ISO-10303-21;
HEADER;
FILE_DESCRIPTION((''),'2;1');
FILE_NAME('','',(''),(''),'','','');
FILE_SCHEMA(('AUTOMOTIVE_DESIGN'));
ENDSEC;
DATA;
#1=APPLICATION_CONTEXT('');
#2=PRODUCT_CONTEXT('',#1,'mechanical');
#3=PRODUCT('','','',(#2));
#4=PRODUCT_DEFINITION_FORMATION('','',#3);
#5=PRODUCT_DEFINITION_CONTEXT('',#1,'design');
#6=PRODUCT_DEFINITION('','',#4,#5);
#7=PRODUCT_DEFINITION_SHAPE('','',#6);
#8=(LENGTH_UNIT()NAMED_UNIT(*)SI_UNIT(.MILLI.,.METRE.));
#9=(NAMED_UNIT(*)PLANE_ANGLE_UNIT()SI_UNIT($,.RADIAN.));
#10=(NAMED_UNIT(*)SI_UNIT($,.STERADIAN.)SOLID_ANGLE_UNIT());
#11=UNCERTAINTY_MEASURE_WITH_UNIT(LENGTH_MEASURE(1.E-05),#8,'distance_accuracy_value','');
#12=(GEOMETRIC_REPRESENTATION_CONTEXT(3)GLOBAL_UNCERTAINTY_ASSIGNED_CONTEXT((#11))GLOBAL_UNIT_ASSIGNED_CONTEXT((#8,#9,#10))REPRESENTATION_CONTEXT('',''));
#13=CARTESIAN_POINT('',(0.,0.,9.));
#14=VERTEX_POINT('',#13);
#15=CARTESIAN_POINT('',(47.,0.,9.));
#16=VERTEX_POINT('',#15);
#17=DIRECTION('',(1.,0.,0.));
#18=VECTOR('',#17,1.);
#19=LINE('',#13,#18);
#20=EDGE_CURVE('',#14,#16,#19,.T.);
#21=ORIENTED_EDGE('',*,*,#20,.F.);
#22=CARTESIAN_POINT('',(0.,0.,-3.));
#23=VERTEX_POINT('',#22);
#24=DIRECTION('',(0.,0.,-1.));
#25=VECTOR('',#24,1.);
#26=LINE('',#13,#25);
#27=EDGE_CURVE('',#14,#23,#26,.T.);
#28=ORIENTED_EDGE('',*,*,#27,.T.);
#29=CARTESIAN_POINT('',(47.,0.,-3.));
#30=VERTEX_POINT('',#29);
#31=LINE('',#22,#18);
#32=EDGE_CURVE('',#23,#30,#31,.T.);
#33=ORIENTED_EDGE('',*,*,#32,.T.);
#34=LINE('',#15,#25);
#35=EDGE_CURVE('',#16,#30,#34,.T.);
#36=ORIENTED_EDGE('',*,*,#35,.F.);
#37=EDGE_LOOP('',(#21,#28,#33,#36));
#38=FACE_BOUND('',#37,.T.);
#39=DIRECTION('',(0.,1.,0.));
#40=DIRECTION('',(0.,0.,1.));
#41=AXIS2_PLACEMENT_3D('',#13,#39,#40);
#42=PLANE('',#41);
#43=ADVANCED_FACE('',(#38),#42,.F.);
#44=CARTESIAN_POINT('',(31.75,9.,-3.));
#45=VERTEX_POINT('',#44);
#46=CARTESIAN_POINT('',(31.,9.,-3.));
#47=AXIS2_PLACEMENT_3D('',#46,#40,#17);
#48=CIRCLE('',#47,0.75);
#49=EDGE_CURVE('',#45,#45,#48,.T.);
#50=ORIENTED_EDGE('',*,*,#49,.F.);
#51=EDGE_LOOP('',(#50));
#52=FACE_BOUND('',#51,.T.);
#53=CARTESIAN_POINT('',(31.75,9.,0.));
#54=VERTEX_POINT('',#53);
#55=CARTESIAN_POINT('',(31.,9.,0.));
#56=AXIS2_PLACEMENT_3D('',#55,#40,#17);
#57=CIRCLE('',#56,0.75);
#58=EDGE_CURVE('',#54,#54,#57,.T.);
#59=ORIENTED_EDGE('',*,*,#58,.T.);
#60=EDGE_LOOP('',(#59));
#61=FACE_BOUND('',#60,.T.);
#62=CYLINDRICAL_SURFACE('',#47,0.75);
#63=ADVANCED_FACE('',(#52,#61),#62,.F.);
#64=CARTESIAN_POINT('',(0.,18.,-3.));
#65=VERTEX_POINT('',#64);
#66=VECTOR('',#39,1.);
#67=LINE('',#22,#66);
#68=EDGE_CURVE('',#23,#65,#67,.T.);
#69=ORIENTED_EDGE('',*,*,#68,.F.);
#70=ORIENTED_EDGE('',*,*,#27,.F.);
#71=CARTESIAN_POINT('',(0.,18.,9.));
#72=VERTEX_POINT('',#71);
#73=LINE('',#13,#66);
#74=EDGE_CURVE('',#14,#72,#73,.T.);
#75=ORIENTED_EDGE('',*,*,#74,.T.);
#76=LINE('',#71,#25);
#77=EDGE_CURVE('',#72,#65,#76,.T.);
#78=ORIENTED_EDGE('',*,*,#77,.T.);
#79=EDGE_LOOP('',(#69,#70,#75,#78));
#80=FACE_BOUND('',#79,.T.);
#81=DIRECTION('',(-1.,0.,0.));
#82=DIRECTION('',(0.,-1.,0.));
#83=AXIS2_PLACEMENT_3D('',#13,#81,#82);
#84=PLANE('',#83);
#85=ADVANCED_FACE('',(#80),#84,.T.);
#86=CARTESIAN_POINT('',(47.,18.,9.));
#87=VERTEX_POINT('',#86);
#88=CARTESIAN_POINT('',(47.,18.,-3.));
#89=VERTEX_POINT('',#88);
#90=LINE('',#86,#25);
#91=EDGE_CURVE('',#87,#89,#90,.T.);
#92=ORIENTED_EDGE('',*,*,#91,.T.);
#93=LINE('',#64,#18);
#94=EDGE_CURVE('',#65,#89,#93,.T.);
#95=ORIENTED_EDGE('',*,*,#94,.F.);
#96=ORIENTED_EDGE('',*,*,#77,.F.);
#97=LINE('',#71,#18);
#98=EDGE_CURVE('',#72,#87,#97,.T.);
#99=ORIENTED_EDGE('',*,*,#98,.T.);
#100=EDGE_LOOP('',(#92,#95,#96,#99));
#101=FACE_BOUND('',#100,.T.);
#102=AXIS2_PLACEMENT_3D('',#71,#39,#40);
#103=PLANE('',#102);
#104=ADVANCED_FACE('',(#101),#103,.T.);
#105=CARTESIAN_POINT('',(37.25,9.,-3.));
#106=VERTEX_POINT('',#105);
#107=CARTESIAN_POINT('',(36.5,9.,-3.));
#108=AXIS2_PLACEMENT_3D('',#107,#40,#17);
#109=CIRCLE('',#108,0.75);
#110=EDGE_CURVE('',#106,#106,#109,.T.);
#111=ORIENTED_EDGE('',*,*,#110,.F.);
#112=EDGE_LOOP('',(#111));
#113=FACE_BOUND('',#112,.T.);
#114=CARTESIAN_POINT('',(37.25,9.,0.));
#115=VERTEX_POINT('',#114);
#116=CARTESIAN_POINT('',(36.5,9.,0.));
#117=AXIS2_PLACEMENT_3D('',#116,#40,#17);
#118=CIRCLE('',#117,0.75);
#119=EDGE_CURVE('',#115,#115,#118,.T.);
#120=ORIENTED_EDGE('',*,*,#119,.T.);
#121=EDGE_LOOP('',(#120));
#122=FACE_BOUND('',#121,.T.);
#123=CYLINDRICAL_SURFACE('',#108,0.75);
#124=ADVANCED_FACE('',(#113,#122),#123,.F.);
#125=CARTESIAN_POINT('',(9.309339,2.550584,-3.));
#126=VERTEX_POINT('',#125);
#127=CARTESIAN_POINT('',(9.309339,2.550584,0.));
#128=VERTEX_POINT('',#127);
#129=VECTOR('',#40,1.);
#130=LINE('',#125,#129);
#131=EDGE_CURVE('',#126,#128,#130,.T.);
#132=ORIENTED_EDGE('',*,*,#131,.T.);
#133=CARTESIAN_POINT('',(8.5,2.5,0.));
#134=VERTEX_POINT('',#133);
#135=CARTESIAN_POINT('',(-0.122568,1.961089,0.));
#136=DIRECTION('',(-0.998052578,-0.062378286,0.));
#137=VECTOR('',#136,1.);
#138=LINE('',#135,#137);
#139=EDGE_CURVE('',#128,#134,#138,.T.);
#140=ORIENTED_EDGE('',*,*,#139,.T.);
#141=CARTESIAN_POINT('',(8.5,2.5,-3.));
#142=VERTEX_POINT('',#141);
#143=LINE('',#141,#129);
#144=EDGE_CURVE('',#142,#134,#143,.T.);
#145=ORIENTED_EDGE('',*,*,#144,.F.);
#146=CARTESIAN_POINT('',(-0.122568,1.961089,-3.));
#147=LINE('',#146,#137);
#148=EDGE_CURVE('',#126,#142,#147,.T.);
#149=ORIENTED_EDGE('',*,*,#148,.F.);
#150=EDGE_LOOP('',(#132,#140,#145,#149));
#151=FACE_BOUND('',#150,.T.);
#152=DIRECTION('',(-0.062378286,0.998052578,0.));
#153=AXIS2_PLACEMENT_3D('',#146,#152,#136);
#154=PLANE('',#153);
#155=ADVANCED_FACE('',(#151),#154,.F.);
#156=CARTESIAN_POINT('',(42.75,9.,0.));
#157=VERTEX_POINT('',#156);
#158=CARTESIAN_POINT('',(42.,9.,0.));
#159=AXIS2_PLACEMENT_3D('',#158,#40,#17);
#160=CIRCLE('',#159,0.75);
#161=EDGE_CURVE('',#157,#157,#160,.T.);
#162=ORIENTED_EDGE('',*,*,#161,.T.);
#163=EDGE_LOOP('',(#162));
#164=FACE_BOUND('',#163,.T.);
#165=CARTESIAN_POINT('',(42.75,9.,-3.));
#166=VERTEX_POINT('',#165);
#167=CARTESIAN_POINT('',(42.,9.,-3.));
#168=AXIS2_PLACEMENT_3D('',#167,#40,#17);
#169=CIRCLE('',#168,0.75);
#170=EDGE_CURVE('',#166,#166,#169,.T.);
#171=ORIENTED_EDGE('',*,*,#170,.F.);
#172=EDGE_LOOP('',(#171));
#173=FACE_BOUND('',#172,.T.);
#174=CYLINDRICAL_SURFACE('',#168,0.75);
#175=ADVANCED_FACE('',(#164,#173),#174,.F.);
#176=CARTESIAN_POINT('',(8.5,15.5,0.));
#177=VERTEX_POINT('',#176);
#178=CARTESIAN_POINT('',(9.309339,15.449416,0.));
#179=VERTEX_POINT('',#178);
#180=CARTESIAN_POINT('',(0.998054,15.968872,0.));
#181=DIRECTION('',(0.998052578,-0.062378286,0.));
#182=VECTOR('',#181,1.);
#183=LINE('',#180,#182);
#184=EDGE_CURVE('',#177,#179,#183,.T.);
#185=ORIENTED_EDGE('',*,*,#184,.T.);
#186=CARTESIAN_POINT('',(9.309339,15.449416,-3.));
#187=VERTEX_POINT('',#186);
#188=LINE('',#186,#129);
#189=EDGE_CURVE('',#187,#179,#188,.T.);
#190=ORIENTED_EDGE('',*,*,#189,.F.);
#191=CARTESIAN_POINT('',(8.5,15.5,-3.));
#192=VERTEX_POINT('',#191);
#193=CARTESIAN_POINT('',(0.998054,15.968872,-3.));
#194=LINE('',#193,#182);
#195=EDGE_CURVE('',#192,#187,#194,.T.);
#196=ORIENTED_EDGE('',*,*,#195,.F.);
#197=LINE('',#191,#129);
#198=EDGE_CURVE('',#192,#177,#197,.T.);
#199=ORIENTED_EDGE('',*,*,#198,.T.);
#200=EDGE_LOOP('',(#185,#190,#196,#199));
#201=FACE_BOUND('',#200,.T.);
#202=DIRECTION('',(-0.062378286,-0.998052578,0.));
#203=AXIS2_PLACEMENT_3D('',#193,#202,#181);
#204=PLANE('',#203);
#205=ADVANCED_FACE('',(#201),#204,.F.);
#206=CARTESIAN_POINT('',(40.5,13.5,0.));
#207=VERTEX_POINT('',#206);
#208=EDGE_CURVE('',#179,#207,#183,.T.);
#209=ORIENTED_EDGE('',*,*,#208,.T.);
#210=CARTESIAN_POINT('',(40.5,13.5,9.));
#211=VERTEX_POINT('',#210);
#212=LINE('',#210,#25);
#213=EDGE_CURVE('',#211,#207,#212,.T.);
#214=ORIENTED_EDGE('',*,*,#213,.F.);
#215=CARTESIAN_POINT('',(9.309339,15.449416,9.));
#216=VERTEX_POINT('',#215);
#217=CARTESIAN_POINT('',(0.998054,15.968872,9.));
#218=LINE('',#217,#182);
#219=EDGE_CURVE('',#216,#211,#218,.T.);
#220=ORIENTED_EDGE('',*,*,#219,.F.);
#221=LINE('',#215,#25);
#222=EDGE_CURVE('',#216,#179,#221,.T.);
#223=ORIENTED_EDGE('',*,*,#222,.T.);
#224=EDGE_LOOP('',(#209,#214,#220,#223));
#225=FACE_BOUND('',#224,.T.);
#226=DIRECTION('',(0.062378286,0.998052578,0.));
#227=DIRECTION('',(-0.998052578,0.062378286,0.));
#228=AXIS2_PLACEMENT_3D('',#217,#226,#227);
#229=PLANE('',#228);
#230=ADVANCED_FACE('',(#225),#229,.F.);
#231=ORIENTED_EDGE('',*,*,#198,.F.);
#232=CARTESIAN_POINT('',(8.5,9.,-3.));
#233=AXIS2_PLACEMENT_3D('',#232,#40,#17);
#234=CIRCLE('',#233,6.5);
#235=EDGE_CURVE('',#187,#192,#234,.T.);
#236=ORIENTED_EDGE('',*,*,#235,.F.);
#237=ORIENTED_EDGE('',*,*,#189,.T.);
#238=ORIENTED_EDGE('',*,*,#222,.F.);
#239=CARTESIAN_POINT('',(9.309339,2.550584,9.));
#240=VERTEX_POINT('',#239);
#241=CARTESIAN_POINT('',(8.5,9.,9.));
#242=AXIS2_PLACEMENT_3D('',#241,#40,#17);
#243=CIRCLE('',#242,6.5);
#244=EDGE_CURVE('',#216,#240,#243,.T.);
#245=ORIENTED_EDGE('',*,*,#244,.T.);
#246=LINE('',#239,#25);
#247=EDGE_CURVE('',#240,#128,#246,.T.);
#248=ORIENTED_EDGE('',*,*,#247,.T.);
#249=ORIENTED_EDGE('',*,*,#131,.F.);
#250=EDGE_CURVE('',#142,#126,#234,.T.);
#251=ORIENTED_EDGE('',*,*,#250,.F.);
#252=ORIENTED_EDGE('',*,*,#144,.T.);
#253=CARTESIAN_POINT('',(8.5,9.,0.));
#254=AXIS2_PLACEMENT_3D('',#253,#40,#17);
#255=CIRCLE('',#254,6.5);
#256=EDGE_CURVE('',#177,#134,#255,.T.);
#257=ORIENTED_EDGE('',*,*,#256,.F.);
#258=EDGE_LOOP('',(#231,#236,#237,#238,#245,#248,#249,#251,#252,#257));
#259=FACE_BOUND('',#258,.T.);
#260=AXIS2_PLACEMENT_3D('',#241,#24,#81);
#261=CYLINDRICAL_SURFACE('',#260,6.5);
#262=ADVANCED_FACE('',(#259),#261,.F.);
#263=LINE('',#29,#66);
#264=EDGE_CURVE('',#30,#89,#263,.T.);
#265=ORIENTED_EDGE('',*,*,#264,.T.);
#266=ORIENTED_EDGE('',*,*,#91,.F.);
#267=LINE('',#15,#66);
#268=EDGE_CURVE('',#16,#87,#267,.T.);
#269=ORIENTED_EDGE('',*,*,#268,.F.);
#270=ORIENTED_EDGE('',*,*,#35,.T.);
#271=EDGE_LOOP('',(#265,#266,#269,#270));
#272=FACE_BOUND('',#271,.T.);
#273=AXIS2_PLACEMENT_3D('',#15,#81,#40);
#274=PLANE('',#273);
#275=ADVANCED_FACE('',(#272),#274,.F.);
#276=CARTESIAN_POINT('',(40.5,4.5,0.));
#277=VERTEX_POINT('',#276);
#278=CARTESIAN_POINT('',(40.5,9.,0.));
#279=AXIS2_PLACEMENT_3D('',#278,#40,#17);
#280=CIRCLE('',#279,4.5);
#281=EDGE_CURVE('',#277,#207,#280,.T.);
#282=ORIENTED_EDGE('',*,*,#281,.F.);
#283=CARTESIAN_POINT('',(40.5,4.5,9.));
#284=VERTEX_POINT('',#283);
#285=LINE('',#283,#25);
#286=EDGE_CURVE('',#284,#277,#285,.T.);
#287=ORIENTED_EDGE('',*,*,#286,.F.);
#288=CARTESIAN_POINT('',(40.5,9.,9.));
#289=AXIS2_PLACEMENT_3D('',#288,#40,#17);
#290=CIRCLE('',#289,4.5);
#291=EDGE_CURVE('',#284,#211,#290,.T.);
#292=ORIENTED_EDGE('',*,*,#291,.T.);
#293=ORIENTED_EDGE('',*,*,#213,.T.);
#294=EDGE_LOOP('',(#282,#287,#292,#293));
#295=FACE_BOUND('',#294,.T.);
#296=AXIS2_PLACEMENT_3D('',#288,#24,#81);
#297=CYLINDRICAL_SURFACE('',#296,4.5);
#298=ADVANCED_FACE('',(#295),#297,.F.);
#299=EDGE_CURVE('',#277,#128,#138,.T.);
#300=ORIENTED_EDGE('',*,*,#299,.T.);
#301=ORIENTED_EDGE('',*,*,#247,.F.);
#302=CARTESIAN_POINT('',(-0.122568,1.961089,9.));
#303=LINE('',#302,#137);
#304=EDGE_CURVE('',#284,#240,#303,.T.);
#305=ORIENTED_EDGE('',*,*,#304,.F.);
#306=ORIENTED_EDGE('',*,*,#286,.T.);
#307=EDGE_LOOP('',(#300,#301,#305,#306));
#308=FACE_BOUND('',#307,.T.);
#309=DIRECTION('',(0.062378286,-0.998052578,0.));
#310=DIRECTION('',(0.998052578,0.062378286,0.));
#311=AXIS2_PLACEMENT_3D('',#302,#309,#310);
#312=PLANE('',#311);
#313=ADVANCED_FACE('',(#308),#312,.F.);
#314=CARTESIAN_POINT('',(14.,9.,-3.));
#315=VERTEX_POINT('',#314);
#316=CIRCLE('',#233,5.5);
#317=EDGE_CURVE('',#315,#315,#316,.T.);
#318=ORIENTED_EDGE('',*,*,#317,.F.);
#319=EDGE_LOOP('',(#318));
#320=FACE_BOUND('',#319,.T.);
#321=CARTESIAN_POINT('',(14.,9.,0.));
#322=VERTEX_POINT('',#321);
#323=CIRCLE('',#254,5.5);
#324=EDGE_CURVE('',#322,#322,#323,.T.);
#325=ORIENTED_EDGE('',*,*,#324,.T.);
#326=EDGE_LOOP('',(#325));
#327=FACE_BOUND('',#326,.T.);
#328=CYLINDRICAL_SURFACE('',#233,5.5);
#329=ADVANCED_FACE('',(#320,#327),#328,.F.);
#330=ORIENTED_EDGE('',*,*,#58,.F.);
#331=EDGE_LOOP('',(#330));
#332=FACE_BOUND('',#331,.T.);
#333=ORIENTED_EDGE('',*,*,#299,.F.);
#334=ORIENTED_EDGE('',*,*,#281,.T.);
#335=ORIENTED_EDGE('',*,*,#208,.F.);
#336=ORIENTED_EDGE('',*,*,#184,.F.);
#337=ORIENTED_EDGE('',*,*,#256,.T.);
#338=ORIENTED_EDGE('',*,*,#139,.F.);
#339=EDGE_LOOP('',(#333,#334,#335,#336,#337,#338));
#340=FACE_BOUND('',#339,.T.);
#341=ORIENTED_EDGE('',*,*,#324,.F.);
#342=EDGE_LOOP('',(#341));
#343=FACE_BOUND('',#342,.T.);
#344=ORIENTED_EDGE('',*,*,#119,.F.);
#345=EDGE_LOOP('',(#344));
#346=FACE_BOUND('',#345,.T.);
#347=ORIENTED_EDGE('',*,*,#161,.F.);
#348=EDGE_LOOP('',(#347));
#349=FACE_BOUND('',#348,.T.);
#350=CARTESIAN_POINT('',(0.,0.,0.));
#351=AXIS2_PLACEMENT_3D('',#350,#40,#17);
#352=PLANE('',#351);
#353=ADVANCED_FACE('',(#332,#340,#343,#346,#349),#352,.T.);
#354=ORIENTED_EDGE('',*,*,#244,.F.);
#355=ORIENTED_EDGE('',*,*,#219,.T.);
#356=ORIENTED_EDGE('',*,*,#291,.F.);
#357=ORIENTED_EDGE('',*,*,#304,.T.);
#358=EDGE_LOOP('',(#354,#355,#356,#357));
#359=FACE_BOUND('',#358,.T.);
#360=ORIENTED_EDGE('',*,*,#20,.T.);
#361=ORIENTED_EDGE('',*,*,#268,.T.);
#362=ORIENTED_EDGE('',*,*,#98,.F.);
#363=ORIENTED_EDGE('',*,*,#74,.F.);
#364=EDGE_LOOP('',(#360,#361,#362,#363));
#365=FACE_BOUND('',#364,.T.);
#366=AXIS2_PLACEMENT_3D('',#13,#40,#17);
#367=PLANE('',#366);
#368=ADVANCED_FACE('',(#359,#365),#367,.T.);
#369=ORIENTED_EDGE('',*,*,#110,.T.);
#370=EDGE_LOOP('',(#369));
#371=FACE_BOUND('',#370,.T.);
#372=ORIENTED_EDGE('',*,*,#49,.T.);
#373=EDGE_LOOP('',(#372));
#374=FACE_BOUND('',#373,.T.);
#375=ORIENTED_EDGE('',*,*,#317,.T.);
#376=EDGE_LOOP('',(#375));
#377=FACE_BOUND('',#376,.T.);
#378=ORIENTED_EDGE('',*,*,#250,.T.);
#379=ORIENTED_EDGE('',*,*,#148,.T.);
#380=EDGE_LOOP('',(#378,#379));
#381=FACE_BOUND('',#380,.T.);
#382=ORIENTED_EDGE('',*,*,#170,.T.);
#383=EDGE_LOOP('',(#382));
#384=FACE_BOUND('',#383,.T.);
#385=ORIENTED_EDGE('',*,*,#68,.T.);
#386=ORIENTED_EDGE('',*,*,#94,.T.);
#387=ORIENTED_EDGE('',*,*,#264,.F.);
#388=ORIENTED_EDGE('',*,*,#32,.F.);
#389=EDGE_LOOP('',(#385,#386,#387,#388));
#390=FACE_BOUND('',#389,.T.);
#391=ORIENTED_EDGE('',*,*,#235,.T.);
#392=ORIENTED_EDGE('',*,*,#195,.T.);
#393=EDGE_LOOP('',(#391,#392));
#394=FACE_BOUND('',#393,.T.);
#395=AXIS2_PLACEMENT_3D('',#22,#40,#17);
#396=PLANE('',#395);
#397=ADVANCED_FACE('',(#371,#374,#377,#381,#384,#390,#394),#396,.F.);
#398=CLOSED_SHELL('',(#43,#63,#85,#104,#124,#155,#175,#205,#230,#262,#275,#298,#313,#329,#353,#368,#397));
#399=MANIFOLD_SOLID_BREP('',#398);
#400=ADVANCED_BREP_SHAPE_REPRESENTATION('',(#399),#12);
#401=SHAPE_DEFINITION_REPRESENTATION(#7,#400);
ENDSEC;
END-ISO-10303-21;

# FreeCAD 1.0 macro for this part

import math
import FreeCAD as App
import Part
import Sketcher
Q = App.Units.Quantity

doc = App.newDocument("Part")
body = doc.addObject("PartDesign::Body", "Body")

sketch1 = body.newObject("Sketcher::SketchObject", "Sketch")
sketch1.AttachmentSupport = (doc.getObject("XY_Plane"), [""])
sketch1.MapMode = "FlatFace"
sketch1.addGeometry([
    Part.LineSegment(App.Vector(0, 18, 0), App.Vector(0, 0, 0)),
    Part.LineSegment(App.Vector(0, 0, 0), App.Vector(47, 0, 0)),
    Part.LineSegment(App.Vector(47, 0, 0), App.Vector(47, 18, 0)),
    Part.LineSegment(App.Vector(47, 18, 0), App.Vector(0, 18, 0)),
    Part.ArcOfCircle(Part.Circle(App.Vector(8.5, 9, 0), App.Vector(0, 0, 1), 6.5), math.radians(90), math.radians(180)),
    Part.ArcOfCircle(Part.Circle(App.Vector(8.5, 9, 0), App.Vector(0, 0, 1), 6.5), math.radians(82.85), math.radians(90)),
    Part.LineSegment(App.Vector(9.3, 15.4, 0), App.Vector(40.5, 13.5, 0)),
    Part.ArcOfCircle(Part.Circle(App.Vector(40.5, 9, 0), App.Vector(0, 0, 1), 4.5), math.radians(0), math.radians(90)),
    Part.ArcOfCircle(Part.Circle(App.Vector(40.5, 9, 0), App.Vector(0, 0, 1), 4.5), math.radians(-90), math.radians(0)),
    Part.LineSegment(App.Vector(40.5, 4.5, 0), App.Vector(9.3, 2.6, 0)),
    Part.ArcOfCircle(Part.Circle(App.Vector(8.5, 9, 0), App.Vector(0, 0, 1), 6.5), math.radians(-90), math.radians(-82.85)),
    Part.ArcOfCircle(Part.Circle(App.Vector(8.5, 9, 0), App.Vector(0, 0, 1), 6.5), math.radians(180), math.radians(270)),
], False)
sketch1.addConstraint([
    Sketcher.Constraint("Coincident", 0, 2, 1, 1),
    Sketcher.Constraint("Coincident", 1, 2, 2, 1),
    Sketcher.Constraint("Coincident", 2, 2, 3, 1),
    Sketcher.Constraint("Coincident", 3, 2, 0, 1),
    Sketcher.Constraint("Tangent", 4, 1, 5, 2),
    Sketcher.Constraint("Coincident", 5, 1, 6, 1),
    Sketcher.Constraint("Coincident", 6, 2, 7, 2),
    Sketcher.Constraint("Tangent", 7, 1, 8, 2),
    Sketcher.Constraint("Coincident", 8, 1, 9, 1),
    Sketcher.Constraint("Coincident", 9, 2, 10, 2),
    Sketcher.Constraint("Tangent", 10, 1, 11, 2),
    Sketcher.Constraint("Tangent", 11, 1, 4, 2),
    Sketcher.Constraint("Vertical", 0),
    Sketcher.Constraint("Horizontal", 1),
    Sketcher.Constraint("Vertical", 2),
    Sketcher.Constraint("Horizontal", 3),
    Sketcher.Constraint("Coincident", 0, 2, -1, 1),
    Sketcher.Constraint("Coincident", 10, 3, 4, 3),
    Sketcher.Constraint("Equal", 4, 5),
    Sketcher.Constraint("Equal", 7, 8),
    Sketcher.Constraint("Horizontal", 5, 3, 7, 3),
    Sketcher.Constraint("Horizontal", 11, 3, 7, 1),
    Sketcher.Constraint("Horizontal", 7, 1, 11, 1),
    Sketcher.Constraint("Vertical", 11, 3, 4, 1),
    Sketcher.Constraint("Vertical", 8, 3, 6, 2),
    Sketcher.Constraint("Vertical", 6, 2, 8, 1),
    Sketcher.Constraint("Vertical", 5, 1, 9, 2),
    Sketcher.Constraint("Vertical", 4, 1, 10, 1),
    Sketcher.Constraint("Radius", 4, Q("6.5 mm")),
    Sketcher.Constraint("Radius", 7, Q("4.5 mm")),
    Sketcher.Constraint("DistanceX", 1, 1, 1, 2, Q("47 mm")),
    Sketcher.Constraint("DistanceY", 0, 2, 0, 1, Q("18 mm")),
    Sketcher.Constraint("DistanceY", -1, 1, 4, 3, Q("9 mm")),
    Sketcher.Constraint("DistanceX", -1, 1, 7, 1, Q("45 mm")),
    Sketcher.Constraint("DistanceX", -1, 1, 11, 1, Q("2 mm")),
    Sketcher.Constraint("Distance", 6, Q("31.251521 mm")),
])
pad1 = body.newObject("PartDesign::Pad", "Pad")
pad1.Profile = sketch1
pad1.Length = 9

sketch2 = body.newObject("Sketcher::SketchObject", "Sketch001")
sketch2.AttachmentSupport = (doc.getObject("XY_Plane"), [""])
sketch2.MapMode = "FlatFace"
sketch2.AttachmentOffset = App.Placement(App.Vector(0, 0, -3), App.Rotation())
sketch2.addGeometry([
    Part.LineSegment(App.Vector(0, 18, 0), App.Vector(0, 0, 0)),
    Part.LineSegment(App.Vector(0, 0, 0), App.Vector(47, 0, 0)),
    Part.LineSegment(App.Vector(47, 0, 0), App.Vector(47, 18, 0)),
    Part.LineSegment(App.Vector(47, 18, 0), App.Vector(0, 18, 0)),
    Part.ArcOfCircle(Part.Circle(App.Vector(8.5, 9, 0), App.Vector(0, 0, 1), 6.5), math.radians(-90), math.radians(-82.85)),
    Part.LineSegment(App.Vector(8.5, 2.5, 0), App.Vector(9.3, 2.6, 0)),
    Part.Circle(App.Vector(8.5, 9, 0), App.Vector(0, 0, 1), 5.5),
    Part.ArcOfCircle(Part.Circle(App.Vector(8.5, 9, 0), App.Vector(0, 0, 1), 6.5), math.radians(82.85), math.radians(90)),
    Part.LineSegment(App.Vector(9.3, 15.4, 0), App.Vector(8.5, 15.5, 0)),
    Part.Circle(App.Vector(31, 9, 0), App.Vector(0, 0, 1), 0.8),
    Part.Circle(App.Vector(36.5, 9, 0), App.Vector(0, 0, 1), 0.8),
    Part.Circle(App.Vector(42, 9, 0), App.Vector(0, 0, 1), 0.8),
], False)
sketch2.addConstraint([
    Sketcher.Constraint("Coincident", 0, 2, 1, 1),
    Sketcher.Constraint("Coincident", 1, 2, 2, 1),
    Sketcher.Constraint("Coincident", 2, 2, 3, 1),
    Sketcher.Constraint("Coincident", 3, 2, 0, 1),
    Sketcher.Constraint("Coincident", 4, 1, 5, 1),
    Sketcher.Constraint("Coincident", 5, 2, 4, 2),
    Sketcher.Constraint("Coincident", 7, 1, 8, 1),
    Sketcher.Constraint("Coincident", 8, 2, 7, 2),
    Sketcher.Constraint("Vertical", 0),
    Sketcher.Constraint("Horizontal", 1),
    Sketcher.Constraint("Vertical", 2),
    Sketcher.Constraint("Horizontal", 3),
    Sketcher.Constraint("Coincident", 0, 2, -1, 1),
    Sketcher.Constraint("Coincident", 6, 3, 4, 3),
    Sketcher.Constraint("Coincident", 7, 3, 4, 3),
    Sketcher.Constraint("Equal", 4, 7),
    Sketcher.Constraint("Equal", 9, 10),
    Sketcher.Constraint("Equal", 10, 11),
    Sketcher.Constraint("Horizontal", 7, 3, 9, 3),
    Sketcher.Constraint("Horizontal", 9, 3, 10, 3),
    Sketcher.Constraint("Horizontal", 10, 3, 11, 3),
    Sketcher.Constraint("Vertical", 7, 3, 4, 1),
    Sketcher.Constraint("Vertical", 5, 2, 7, 1),
    Sketcher.Constraint("Vertical", 4, 1, 8, 2),
    Sketcher.Constraint("Diameter", 6, Q("11 mm")),
    Sketcher.Constraint("Diameter", 9, Q("1.5 mm")),
    Sketcher.Constraint("Radius", 4, Q("6.5 mm")),
    Sketcher.Constraint("DistanceX", 1, 1, 1, 2, Q("47 mm")),
    Sketcher.Constraint("DistanceY", 0, 2, 0, 1, Q("18 mm")),
    Sketcher.Constraint("DistanceY", -1, 1, 4, 3, Q("9 mm")),
    Sketcher.Constraint("DistanceX", -1, 1, 9, 3, Q("31 mm")),
    Sketcher.Constraint("DistanceX", -1, 1, 11, 3, Q("42 mm")),
    Sketcher.Constraint("DistanceX", 6, 3, 10, 3, Q("28 mm")),
    Sketcher.Constraint("DistanceX", -1, 1, 4, 3, Q("8.5 mm")),
    Sketcher.Constraint("DistanceX", -1, 1, 5, 2, Q("9.309339 mm")),
])
pad2 = body.newObject("PartDesign::Pad", "Pad001")
pad2.Profile = sketch2
pad2.Length = 3

doc.recompute()
